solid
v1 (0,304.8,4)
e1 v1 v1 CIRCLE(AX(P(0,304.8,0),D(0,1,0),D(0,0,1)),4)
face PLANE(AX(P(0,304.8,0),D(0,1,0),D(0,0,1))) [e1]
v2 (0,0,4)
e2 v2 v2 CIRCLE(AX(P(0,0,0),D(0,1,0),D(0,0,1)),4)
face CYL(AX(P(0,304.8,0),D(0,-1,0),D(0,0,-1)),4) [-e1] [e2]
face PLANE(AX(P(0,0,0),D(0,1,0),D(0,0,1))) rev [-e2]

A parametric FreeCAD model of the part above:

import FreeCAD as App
import Part
import Sketcher
from FreeCAD import Vector
Q = App.Units.Quantity

doc = App.newDocument("Part")
body = doc.addObject("PartDesign::Body", "Body")

# Sketch on XZ plane
sketch1 = body.newObject("Sketcher::SketchObject", "Sketch")
sketch1.AttachmentSupport = (doc.getObject("XZ_Plane"), [""])
sketch1.MapMode = "FlatFace"
sketch1.addGeometry(Part.Circle(Vector(0, 0, 0), Vector(0, 0, 1), 4), False)
sketch1.addConstraint(Sketcher.Constraint("Coincident", 0, 3, -1, 1))
sketch1.addConstraint(Sketcher.Constraint("Diameter", 0, Q("8 mm")))
pad1 = body.newObject("PartDesign::Pad", "Pad")
pad1.Profile = sketch1
pad1.Length = 304.8
pad1.Reversed = True

doc.recompute()
